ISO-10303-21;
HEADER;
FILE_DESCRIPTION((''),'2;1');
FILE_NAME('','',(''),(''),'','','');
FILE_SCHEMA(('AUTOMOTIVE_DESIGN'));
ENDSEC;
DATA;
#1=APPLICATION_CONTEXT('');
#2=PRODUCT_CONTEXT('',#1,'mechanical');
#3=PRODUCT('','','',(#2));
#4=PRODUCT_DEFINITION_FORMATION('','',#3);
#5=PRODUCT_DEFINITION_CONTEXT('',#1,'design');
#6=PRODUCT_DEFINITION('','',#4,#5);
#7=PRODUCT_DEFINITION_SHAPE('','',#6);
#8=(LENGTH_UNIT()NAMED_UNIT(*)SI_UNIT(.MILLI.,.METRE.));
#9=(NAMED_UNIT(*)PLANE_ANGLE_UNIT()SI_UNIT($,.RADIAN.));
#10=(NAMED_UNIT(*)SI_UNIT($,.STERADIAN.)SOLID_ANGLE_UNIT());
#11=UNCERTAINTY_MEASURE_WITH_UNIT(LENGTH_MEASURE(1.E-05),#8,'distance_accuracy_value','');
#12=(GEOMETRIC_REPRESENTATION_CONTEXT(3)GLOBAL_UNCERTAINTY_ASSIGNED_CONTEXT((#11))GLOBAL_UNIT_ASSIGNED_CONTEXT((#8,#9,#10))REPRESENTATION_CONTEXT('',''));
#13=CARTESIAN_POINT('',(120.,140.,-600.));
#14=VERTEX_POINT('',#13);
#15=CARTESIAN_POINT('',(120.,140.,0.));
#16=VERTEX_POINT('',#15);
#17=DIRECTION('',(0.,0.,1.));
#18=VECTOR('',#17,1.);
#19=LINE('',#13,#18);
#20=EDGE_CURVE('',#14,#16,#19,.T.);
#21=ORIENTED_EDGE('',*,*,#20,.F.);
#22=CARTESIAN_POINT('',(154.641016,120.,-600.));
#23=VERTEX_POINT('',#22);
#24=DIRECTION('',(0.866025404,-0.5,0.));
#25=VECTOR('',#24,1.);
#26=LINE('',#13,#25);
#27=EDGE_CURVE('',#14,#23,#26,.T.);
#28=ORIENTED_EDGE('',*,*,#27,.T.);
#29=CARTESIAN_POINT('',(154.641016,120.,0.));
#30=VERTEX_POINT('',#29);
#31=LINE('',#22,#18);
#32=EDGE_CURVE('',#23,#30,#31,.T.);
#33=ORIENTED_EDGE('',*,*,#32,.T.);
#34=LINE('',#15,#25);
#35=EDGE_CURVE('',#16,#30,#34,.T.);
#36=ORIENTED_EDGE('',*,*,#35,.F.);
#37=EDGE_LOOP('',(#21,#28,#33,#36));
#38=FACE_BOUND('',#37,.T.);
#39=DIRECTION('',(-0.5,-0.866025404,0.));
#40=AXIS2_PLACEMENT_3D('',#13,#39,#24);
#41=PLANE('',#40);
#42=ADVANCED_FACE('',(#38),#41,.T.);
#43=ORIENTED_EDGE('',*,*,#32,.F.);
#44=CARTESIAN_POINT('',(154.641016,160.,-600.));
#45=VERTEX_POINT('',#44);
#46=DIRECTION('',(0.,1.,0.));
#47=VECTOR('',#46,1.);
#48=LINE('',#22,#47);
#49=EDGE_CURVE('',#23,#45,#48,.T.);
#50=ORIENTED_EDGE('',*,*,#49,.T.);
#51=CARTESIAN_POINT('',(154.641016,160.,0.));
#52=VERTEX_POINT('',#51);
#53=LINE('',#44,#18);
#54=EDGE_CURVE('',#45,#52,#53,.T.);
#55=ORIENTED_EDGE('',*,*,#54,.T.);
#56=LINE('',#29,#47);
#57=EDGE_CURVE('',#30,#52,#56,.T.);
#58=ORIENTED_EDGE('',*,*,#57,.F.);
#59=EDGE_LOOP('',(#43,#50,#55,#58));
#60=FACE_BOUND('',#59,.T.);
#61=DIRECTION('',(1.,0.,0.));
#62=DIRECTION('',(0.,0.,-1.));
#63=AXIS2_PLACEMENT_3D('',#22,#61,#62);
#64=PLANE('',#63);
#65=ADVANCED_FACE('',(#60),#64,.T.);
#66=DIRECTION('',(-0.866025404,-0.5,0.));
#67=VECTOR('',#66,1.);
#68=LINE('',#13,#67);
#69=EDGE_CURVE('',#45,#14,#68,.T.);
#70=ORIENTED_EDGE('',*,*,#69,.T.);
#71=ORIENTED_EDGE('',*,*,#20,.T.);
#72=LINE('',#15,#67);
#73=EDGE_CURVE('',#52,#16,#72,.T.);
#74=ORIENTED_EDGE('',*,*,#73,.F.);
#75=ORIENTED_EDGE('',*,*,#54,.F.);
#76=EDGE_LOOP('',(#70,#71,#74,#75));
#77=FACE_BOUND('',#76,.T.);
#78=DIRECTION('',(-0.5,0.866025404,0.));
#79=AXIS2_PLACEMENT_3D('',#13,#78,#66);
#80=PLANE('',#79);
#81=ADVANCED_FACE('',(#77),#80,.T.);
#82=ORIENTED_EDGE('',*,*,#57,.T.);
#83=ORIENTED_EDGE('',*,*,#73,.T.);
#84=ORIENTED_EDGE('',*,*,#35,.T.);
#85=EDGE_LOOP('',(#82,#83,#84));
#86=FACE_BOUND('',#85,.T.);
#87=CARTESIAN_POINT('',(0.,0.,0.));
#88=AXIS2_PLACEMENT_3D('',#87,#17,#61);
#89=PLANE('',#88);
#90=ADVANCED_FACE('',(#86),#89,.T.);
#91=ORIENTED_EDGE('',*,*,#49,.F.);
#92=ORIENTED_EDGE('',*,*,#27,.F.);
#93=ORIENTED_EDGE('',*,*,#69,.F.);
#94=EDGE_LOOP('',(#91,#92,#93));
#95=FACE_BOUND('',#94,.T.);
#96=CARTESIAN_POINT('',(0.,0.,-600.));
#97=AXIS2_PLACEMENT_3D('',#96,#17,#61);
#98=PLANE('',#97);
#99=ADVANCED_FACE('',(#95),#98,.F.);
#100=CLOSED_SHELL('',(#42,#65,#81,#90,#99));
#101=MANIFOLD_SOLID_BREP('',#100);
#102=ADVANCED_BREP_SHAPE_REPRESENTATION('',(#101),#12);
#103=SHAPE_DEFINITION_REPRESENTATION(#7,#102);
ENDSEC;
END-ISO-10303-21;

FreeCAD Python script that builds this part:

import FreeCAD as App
import Part
import Sketcher
Q = App.Units.Quantity

doc = App.newDocument("Part")
params = doc.addObject("Spreadsheet::Sheet", "Params")
for row, (alias, value) in enumerate([
    ("sketch1_height", "40 mm"),
    ("pad1_length", "600 mm"),
], start=1):
    params.set(f"A{row}", alias)
    params.set(f"B{row}", "=" + value)
    params.setAlias(f"B{row}", alias)

body = doc.addObject("PartDesign::Body", "Body")

# Sketch on XY plane
sketch1 = doc.addObject("Sketcher::SketchObject", "Sketch")
body.addObject(sketch1)
sketch1.AttachmentSupport = (doc.XY_Plane, [""])
sketch1.MapMode = "FlatFace"
sketch1.addGeometry(Part.LineSegment(App.Vector(154.641016, 160, 0), App.Vector(120, 140, 0)), False)
sketch1.addGeometry(Part.LineSegment(App.Vector(120, 140, 0), App.Vector(154.641016, 120, 0)), False)
sketch1.addGeometry(Part.LineSegment(App.Vector(154.641016, 120, 0), App.Vector(154.641016, 160, 0)), False)
sketch1.addConstraint(Sketcher.Constraint("Coincident", 0, 2, 1, 1))
sketch1.addConstraint(Sketcher.Constraint("Coincident", 1, 2, 2, 1))
sketch1.addConstraint(Sketcher.Constraint("Coincident", 2, 2, 0, 1))
sketch1.addConstraint(Sketcher.Constraint("Vertical", 2))
sketch1.addConstraint(Sketcher.Constraint("Equal", 0, 1))
sketch1.addConstraint(Sketcher.Constraint("DistanceY", 2, 1, 2, 2, Q("40 mm")))
sketch1.addConstraint(Sketcher.Constraint("Angle", 0, Q("-150 deg")))
sketch1.addConstraint(Sketcher.Constraint("DistanceX", -1, 1, 0, 2, Q("120 mm")))
sketch1.addConstraint(Sketcher.Constraint("DistanceY", -1, 1, 0, 2, Q("140 mm")))
sketch1.setExpression("Constraints[5]", "Params.sketch1_height")
pad1 = doc.addObject("PartDesign::Pad", "Pad")
body.addObject(pad1)
pad1.Profile = sketch1
pad1.setExpression("Length", "Params.pad1_length")
pad1.Reversed = True

doc.recompute()
